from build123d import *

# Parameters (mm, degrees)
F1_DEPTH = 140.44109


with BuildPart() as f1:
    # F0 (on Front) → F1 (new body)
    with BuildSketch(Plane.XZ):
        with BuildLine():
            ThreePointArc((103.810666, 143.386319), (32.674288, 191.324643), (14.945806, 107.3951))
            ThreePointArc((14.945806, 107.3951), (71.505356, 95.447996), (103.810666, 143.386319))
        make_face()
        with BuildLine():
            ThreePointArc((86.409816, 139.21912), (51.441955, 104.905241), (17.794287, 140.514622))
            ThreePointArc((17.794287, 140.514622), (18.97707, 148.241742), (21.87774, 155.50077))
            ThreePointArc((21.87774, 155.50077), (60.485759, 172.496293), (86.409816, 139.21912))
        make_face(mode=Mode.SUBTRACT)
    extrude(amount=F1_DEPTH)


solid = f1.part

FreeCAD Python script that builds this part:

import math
import FreeCAD as App
import Part
import Sketcher

V = App.Vector
Q = App.Units.Quantity

doc = App.newDocument("Part")
body = doc.addObject("PartDesign::Body", "Body")

# Sketch on XZ plane
sketch1 = body.newObject("Sketcher::SketchObject", "Sketch")
sketch1.AttachmentSupport = (doc.getObject("XZ_Plane"), [""])
sketch1.MapMode = "FlatFace"
sketch1.addGeometry([
    Part.ArcOfCircle(Part.Circle(V(52, 143, 0), V(0, 0, 1), 52), math.radians(0), math.radians(224)),  # 0
    Part.ArcOfCircle(Part.Circle(V(52, 143, 0), V(0, 0, 1), 52), math.radians(-136), math.radians(0)),  # 1
    Part.ArcOfCircle(Part.Circle(V(52, 139, 0), V(0, 0, 1), 34), math.radians(0), math.radians(152)),  # 2
    Part.ArcOfCircle(Part.Circle(V(52, 139, 0), V(0, 0, 1), 34), math.radians(178), math.radians(360)),  # 3
    Part.ArcOfCircle(Part.Circle(V(52, 139, 0), V(0, 0, 1), 34), math.radians(152), math.radians(178)),  # 4
], False)
sketch1.addConstraint([
    Sketcher.Constraint("Tangent", 0, 1, 1, 2),
    Sketcher.Constraint("Coincident", 1, 1, 0, 2),
    Sketcher.Constraint("Tangent", 2, 1, 3, 2),
    Sketcher.Constraint("Tangent", 3, 1, 4, 2),
    Sketcher.Constraint("Tangent", 4, 1, 2, 2),
    Sketcher.Constraint("Horizontal", 1, 3, 0, 1),
    Sketcher.Constraint("Horizontal", 4, 3, 2, 1),
    Sketcher.Constraint("Vertical", 1, 3, 2, 3),
    Sketcher.Constraint("Radius", 0, Q("51.720845 mm")),
    Sketcher.Constraint("Radius", 2, Q("34.319994 mm")),
    Sketcher.Constraint("DistanceY", -1, 1, 1, 1, Q("107.3951 mm")),
    Sketcher.Constraint("DistanceY", 2, 3, 1, 3, Q("4.167198 mm")),
    Sketcher.Constraint("DistanceY", 4, 3, 3, 1, Q("1.2955 mm")),
    Sketcher.Constraint("DistanceX", -1, 1, 0, 3, Q("52.089821 mm")),
    Sketcher.Constraint("DistanceY", -1, 1, 0, 3, Q("143.38632 mm")),
    Sketcher.Constraint("DistanceX", -1, 1, 4, 1, Q("21.87774 mm")),
])
pad1 = body.newObject("PartDesign::Pad", "Pad")
pad1.Profile = sketch1
pad1.Length = 140.44109

doc.recompute()
